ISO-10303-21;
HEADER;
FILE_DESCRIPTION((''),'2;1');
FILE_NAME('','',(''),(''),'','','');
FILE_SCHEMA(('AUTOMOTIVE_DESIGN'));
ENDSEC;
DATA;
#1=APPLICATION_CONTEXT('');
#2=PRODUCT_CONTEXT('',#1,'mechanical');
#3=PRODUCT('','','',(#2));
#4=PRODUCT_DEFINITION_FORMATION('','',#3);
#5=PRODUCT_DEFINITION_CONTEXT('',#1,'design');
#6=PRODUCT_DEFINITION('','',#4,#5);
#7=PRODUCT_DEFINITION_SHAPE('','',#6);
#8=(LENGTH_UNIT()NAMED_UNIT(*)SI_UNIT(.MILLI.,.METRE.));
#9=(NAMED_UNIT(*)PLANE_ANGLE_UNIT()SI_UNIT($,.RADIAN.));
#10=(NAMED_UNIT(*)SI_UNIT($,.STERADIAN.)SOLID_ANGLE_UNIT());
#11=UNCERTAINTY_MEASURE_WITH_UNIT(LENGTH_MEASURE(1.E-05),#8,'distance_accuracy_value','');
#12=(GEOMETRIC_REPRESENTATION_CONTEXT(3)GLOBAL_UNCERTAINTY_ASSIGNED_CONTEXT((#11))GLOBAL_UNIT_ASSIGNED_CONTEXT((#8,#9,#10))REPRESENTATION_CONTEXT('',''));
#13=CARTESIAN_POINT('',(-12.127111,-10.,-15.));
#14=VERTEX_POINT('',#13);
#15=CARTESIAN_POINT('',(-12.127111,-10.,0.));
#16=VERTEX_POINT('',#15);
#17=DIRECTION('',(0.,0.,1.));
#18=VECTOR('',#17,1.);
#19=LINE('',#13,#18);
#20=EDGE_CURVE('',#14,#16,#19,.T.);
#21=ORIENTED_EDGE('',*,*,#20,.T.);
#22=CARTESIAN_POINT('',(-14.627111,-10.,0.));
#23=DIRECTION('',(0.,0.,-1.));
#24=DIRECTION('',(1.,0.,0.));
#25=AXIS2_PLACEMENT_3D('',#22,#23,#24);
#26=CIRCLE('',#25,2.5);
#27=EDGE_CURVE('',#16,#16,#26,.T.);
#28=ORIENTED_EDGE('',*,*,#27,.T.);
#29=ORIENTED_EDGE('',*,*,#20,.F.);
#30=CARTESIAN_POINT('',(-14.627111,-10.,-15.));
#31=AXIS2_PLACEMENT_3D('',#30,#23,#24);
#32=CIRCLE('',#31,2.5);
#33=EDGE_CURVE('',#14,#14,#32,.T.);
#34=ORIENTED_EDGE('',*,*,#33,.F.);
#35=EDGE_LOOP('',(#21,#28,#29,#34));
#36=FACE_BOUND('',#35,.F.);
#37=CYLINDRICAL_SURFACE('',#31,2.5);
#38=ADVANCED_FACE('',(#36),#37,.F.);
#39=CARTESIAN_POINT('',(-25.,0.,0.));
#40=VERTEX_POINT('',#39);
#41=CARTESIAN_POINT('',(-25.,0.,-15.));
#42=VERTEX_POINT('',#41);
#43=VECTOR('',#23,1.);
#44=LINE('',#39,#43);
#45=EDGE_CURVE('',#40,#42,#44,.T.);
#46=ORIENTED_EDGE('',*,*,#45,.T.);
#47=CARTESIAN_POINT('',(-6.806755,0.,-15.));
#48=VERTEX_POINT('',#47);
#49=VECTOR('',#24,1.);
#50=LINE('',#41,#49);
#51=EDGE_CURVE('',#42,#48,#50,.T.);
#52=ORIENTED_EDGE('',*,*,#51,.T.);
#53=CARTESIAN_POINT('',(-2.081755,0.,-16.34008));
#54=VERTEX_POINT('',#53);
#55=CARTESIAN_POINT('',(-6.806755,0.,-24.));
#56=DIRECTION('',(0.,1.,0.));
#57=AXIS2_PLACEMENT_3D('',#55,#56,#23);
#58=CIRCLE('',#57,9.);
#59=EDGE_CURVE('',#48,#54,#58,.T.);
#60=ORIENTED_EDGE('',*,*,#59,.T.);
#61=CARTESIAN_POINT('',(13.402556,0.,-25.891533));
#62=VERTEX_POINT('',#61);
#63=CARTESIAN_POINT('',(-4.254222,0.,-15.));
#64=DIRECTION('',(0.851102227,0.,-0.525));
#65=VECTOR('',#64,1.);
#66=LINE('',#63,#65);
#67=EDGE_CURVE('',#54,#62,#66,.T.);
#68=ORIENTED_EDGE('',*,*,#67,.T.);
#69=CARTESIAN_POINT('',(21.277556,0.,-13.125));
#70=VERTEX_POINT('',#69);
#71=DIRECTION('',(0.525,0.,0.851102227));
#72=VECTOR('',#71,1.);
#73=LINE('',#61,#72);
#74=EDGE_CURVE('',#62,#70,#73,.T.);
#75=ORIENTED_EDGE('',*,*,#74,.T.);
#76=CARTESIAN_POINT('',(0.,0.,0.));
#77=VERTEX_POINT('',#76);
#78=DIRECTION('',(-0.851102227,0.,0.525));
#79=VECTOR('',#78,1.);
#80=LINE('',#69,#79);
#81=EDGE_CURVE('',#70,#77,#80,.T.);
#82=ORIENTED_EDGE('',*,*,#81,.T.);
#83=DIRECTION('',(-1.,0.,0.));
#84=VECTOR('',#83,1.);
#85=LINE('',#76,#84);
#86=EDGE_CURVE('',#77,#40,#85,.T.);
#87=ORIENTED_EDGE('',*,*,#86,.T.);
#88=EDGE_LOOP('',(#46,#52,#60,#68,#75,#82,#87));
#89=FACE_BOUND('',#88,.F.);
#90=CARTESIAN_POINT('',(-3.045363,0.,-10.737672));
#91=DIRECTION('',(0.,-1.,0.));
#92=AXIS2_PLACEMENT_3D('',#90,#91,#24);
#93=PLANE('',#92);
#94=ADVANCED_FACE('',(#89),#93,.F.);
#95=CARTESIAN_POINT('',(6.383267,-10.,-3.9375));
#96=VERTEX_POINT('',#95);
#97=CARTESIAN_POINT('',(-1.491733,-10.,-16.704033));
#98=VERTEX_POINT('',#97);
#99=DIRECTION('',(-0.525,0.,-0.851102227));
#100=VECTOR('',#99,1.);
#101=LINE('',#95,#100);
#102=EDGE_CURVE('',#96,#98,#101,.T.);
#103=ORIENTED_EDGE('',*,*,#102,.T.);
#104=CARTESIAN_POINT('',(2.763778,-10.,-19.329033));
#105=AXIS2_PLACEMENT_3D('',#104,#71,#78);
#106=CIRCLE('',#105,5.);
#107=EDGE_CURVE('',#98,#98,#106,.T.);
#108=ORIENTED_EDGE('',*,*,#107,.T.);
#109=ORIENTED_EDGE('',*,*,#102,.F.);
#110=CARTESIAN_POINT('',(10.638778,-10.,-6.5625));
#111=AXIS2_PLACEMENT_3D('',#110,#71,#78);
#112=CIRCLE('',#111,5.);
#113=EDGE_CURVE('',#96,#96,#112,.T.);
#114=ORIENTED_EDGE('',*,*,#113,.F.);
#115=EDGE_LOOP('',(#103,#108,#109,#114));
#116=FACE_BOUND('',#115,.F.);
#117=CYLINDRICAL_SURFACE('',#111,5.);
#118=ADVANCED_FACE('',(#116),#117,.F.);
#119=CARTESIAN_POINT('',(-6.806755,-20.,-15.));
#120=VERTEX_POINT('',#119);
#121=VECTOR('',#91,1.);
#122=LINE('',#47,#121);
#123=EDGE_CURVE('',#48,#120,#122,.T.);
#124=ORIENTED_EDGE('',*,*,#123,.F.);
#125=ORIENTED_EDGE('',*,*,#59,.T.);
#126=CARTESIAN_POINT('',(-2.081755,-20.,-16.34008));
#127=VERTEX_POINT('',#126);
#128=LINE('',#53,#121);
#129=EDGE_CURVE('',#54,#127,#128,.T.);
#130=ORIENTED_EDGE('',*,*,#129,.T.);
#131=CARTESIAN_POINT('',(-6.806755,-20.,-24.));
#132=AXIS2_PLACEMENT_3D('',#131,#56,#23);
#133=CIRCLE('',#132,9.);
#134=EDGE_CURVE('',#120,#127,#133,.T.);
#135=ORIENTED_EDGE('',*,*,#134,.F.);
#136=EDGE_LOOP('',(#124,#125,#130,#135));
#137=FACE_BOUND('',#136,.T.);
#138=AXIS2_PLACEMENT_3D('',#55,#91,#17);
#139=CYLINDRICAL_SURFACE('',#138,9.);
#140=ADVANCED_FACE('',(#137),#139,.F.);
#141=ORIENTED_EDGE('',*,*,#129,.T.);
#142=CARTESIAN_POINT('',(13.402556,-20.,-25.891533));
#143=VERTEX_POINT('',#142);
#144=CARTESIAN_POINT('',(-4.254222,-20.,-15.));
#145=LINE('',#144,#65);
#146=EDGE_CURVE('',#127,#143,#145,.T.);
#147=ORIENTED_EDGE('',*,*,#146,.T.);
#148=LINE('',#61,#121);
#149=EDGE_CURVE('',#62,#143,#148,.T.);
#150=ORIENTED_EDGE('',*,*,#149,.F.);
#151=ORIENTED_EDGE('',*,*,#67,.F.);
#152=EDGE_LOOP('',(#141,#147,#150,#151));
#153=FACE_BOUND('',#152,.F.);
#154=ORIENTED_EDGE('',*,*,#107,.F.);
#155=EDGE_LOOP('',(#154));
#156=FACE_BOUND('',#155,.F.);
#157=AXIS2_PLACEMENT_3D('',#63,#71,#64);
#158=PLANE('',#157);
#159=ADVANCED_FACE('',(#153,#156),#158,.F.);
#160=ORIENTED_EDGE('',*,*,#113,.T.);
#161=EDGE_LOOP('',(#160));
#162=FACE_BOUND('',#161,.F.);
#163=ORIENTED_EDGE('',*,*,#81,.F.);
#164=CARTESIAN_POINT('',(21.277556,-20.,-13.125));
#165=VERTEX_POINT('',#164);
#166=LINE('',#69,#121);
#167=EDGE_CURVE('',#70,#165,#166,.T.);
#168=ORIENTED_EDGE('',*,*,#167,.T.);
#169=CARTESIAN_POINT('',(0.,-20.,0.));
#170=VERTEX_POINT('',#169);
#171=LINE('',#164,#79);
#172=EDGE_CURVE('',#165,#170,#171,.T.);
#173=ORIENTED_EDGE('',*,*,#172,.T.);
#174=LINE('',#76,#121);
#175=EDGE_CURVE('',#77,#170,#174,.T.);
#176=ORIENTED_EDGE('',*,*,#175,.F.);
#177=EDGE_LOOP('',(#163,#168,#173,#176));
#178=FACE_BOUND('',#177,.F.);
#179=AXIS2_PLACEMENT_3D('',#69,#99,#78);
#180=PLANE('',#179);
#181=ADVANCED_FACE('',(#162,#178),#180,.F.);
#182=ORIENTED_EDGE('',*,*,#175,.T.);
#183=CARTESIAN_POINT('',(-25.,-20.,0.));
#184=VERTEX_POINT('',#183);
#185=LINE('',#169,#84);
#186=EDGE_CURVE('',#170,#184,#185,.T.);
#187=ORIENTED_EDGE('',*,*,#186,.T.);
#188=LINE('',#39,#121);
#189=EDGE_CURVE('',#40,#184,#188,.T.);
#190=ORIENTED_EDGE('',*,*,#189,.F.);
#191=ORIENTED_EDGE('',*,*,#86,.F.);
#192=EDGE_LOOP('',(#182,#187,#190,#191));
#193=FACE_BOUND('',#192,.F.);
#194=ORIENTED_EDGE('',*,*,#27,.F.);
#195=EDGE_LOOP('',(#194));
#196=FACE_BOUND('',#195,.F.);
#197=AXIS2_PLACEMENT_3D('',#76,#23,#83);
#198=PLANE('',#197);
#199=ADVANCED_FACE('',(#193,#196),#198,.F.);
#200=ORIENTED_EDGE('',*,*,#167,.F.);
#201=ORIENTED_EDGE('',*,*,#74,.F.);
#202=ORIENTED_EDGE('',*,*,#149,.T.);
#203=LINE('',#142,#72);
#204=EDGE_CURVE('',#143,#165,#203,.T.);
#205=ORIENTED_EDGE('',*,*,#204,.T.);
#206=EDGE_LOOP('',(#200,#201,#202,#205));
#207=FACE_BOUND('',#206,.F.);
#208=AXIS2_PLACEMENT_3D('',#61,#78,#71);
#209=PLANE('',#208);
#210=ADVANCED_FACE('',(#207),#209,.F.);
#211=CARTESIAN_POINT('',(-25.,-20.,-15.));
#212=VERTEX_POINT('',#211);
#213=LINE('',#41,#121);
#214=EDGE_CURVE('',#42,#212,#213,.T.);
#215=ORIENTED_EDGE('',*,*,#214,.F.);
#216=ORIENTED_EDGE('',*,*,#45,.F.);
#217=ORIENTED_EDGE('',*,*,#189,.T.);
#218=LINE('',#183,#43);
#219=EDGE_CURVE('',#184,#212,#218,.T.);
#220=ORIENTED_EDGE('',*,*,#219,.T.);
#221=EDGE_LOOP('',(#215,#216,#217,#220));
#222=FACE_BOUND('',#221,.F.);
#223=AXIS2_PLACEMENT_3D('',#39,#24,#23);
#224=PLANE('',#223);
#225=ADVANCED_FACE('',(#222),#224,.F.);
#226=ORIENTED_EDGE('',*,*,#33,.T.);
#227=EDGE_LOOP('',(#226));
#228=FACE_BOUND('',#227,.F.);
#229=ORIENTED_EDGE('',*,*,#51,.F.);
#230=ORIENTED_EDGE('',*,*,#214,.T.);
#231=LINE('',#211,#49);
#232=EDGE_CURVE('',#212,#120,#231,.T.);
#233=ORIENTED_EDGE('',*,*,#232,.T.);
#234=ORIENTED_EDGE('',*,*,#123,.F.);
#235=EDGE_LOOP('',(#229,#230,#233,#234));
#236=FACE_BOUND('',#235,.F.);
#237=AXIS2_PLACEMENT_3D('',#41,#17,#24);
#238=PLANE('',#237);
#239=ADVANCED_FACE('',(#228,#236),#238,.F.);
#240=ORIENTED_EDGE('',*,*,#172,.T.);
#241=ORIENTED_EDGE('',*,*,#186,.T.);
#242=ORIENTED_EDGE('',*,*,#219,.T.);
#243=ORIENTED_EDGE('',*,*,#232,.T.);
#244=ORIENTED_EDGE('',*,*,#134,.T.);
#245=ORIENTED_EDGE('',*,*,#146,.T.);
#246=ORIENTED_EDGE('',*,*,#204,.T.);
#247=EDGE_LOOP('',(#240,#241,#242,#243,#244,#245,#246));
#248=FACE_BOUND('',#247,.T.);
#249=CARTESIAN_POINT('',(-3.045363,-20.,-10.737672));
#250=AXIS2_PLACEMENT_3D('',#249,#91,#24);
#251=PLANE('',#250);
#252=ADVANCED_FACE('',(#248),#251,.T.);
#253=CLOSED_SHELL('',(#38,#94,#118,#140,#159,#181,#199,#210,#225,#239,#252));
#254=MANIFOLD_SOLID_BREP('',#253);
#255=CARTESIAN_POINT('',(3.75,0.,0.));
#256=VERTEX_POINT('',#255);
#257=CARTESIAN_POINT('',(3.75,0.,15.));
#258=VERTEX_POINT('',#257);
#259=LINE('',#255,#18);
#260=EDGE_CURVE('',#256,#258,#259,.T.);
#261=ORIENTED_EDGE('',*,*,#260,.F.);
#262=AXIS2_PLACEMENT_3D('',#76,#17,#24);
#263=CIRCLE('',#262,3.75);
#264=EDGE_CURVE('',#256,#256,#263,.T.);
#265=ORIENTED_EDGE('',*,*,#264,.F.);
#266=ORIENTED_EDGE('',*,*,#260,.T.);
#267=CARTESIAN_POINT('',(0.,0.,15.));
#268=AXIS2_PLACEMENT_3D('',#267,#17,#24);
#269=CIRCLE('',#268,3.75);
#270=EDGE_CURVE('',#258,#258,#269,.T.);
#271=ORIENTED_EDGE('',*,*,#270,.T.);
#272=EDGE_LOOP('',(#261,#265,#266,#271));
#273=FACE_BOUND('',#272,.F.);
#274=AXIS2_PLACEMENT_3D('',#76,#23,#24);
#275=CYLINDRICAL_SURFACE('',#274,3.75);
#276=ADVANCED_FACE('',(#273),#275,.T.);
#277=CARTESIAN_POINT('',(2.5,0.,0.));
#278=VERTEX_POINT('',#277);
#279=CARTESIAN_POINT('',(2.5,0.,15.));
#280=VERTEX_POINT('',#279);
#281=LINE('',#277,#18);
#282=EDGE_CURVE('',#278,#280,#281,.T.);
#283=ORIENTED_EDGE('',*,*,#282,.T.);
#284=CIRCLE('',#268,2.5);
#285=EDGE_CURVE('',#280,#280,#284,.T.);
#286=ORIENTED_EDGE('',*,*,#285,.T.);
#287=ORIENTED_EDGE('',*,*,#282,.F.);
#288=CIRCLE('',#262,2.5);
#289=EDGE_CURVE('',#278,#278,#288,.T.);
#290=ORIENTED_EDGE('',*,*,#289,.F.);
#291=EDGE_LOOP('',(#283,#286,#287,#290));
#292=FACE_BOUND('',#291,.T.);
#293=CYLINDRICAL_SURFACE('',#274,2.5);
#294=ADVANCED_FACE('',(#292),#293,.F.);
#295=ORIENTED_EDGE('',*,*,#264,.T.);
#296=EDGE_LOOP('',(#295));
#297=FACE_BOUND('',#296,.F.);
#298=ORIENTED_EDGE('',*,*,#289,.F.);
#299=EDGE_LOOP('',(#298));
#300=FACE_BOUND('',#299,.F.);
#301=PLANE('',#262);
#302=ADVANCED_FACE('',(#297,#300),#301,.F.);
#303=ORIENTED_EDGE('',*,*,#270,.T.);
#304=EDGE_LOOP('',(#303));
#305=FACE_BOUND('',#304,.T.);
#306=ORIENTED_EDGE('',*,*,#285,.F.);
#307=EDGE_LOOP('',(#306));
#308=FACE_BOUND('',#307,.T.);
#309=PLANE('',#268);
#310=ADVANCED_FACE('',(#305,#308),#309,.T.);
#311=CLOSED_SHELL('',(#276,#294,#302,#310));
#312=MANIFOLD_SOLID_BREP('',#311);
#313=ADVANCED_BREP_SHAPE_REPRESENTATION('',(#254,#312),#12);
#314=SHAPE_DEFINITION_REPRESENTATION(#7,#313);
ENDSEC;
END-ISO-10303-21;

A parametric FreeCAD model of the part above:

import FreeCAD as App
import Part
import Sketcher
from FreeCAD import Vector


def edges_at(feature, points):
    """Names of the edges that pass closest to the given points."""
    edges = feature.Shape.Edges
    near = lambda p: min(range(len(edges)), key=lambda i: edges[i].distToShape(Part.Vertex(*p))[0])
    return sorted({f"Edge{near(p) + 1}" for p in points})


def add_polygon(sketch, points):
    """Adds a closed chain of lines whose ends are joined by coincident constraints."""
    first, n = sketch.GeometryCount, len(points)
    for a, b in zip(points, points[1:] + points[:1]):
        sketch.addGeometry(Part.LineSegment(App.Vector(*a, 0), App.Vector(*b, 0)), False)
    for i in range(n):
        sketch.addConstraint(Sketcher.Constraint("Coincident", first + i, 2, first + (i + 1) % n, 1))

doc = App.newDocument("Part")
body = doc.addObject("PartDesign::Body", "Body")

sketch1 = body.newObject("Sketcher::SketchObject", "Sketch")
sketch1.AttachmentSupport = (doc.getObject("XZ_Plane"), [""])
sketch1.MapMode = "FlatFace"
add_polygon(sketch1, [(0, 0), (-25, 0), (-25, -15), (-4, -15), (13, -26), (21, -13)])
sketch1.addConstraint(Sketcher.Constraint("Horizontal", 0))
sketch1.addConstraint(Sketcher.Constraint("Vertical", 1))
sketch1.addConstraint(Sketcher.Constraint("Horizontal", 2))
sketch1.addConstraint(Sketcher.Constraint("Coincident", 5, 2, -1, 1))
sketch1.addConstraint(Sketcher.Constraint("Perpendicular", 3, 4))
sketch1.addConstraint(Sketcher.Constraint("Perpendicular", 4, 5))
sketch1.addConstraint(Sketcher.Constraint("DistanceX", 0, 2, 0, 1, 25.0))
sketch1.addConstraint(Sketcher.Constraint("DistanceY", 1, 2, 1, 1, 15.0))
sketch1.addConstraint(Sketcher.Constraint("Distance", 4, 15.0))
sketch1.addConstraint(Sketcher.Constraint("Distance", 5, 25.0))
sketch1.addConstraint(Sketcher.Constraint("DistanceY", 4, 2, -1, 1, 13.125))
pad1 = body.newObject("PartDesign::Pad", "Pad")
pad1.Profile = sketch1
pad1.Length = 20

sketch2 = body.newObject("Sketcher::SketchObject", "Sketch001")
sketch2.Placement = App.Placement(Vector(0, 0, 0), App.Rotation(Vector(-0.851102227, 0, 0.525), Vector(0, -1.000000001, 0), Vector(0.525, 0, 0.851102227), "ZXY"))
sketch2.addGeometry(Part.Circle(Vector(-13, 10, 0), Vector(0, 0, 1), 5), False)
sketch2.addConstraint(Sketcher.Constraint("Diameter", 0, 10.0))
sketch2.addConstraint(Sketcher.Constraint("DistanceY", -1, 1, 0, 3, 10.0))
sketch2.addConstraint(Sketcher.Constraint("DistanceX", 0, 3, -1, 1, 12.5))
pocket1 = body.newObject("PartDesign::Pocket", "Pocket")
pocket1.Profile = sketch2
pocket1.Type = "ThroughAll"

sketch3 = body.newObject("Sketcher::SketchObject", "Sketch002")
sketch3.AttachmentSupport = (doc.getObject("XY_Plane"), [""])
sketch3.MapMode = "FlatFace"
sketch3.AttachmentOffset = App.Placement(Vector(0, 0, -15), App.Rotation())
sketch3.addGeometry(Part.Circle(Vector(-14.6, -10, 0), Vector(0, 0, 1), 2.5), False)
sketch3.addConstraint(Sketcher.Constraint("Diameter", 0, 5.0))
sketch3.addConstraint(Sketcher.Constraint("DistanceY", 0, 3, -1, 1, 10.0))
sketch3.addConstraint(Sketcher.Constraint("DistanceX", 0, 3, -1, 1, 14.627111))
pocket2 = body.newObject("PartDesign::Pocket", "Pocket001")
pocket2.Profile = sketch3
pocket2.Type = "ThroughAll"
pocket2.Reversed = True
doc.recompute()

fillet = body.newObject("PartDesign::Fillet", "Fillet")
fillet.Base = (pocket2, edges_at(pocket2, [(-4.254, -10, -15)]))
fillet.Radius = 9
body2 = doc.addObject("PartDesign::Body", "Body001")

sketch4 = body2.newObject("Sketcher::SketchObject", "Sketch003")
sketch4.AttachmentSupport = (doc.getObject("XY_Plane001"), [""])
sketch4.MapMode = "FlatFace"
sketch4.addGeometry(Part.Circle(Vector(0, 0, 0), Vector(0, 0, 1), 3.8), False)
sketch4.addGeometry(Part.Circle(Vector(0, 0, 0), Vector(0, 0, 1), 2.5), False)
sketch4.addConstraint(Sketcher.Constraint("Coincident", 0, 3, -1, 1))
sketch4.addConstraint(Sketcher.Constraint("Coincident", 1, 3, -1, 1))
sketch4.addConstraint(Sketcher.Constraint("Diameter", 1, 5.0))
sketch4.addConstraint(Sketcher.Constraint("Diameter", 0, 7.5))
pad2 = body2.newObject("PartDesign::Pad", "Pad001")
pad2.Profile = sketch4
pad2.Length = 15

doc.recompute()
